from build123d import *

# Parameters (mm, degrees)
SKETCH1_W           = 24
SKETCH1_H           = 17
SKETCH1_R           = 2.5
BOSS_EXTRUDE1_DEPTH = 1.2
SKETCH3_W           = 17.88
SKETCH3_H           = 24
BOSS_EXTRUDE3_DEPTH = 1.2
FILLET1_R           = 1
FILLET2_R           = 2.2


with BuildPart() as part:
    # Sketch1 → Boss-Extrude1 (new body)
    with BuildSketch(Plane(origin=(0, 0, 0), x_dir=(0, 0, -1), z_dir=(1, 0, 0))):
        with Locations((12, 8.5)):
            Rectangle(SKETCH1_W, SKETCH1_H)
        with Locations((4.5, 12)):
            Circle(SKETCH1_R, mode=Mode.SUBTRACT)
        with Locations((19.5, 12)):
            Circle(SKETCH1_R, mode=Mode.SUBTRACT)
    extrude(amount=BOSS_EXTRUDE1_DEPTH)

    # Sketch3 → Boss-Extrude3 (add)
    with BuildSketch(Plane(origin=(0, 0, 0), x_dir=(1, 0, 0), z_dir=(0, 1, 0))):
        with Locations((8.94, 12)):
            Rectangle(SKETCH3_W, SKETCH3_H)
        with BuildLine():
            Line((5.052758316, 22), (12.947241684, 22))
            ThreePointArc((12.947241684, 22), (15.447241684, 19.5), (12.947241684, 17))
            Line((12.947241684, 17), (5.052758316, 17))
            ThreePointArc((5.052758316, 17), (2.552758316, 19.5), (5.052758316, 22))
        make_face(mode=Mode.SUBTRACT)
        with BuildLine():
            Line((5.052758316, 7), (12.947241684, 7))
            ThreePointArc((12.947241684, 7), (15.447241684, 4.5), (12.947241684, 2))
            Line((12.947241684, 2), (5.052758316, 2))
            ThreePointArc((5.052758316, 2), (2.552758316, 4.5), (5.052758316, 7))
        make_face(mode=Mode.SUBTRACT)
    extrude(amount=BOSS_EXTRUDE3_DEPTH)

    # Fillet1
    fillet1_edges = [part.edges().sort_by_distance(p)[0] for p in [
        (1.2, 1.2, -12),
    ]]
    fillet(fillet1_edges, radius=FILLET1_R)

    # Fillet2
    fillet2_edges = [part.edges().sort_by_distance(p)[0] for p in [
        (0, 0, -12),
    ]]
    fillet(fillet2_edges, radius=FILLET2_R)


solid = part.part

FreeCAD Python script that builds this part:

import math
import FreeCAD as App
import Part
import Sketcher
from FreeCAD import Vector
Q = App.Units.Quantity


def edges_at(feature, points):
    """Names of the edges that pass closest to the given points."""
    edges = feature.Shape.Edges
    near = lambda p: min(range(len(edges)), key=lambda i: edges[i].distToShape(Part.Vertex(*p))[0])
    return sorted({f"Edge{near(p) + 1}" for p in points})

doc = App.newDocument("Part")
params = doc.addObject("Spreadsheet::Sheet", "Params")
for row, (alias, value) in enumerate([
    ("sketch1_diameter", "5 mm"),
    ("sketch1_width", "17 mm"),
    ("sketch1_height", "24 mm"),
    ("pad1_length", "1.2 mm"),
    ("sketch2_radius", "2.5 mm"),
    ("sketch2_height", "24 mm"),
    ("sketch2_width", "17.88 mm"),
    ("pad2_length", "1.2 mm"),
    ("fillet_radius", "1 mm"),
    ("fillet2_radius", "2.2 mm"),
], start=1):
    params.set(f"A{row}", alias)
    params.set(f"B{row}", "=" + value)
    params.setAlias(f"B{row}", alias)

body = doc.addObject("PartDesign::Body", "Body")

sketch1 = body.newObject("Sketcher::SketchObject", "Sketch")
sketch1.AttachmentSupport = (doc.getObject("YZ_Plane"), [""])
sketch1.MapMode = "FlatFace"
sketch1.addGeometry([
    Part.LineSegment(Vector(17, 0, 0), Vector(0, 0, 0)),
    Part.LineSegment(Vector(0, 0, 0), Vector(0, -24, 0)),
    Part.LineSegment(Vector(0, -24, 0), Vector(17, -24, 0)),
    Part.LineSegment(Vector(17, -24, 0), Vector(17, 0, 0)),
    Part.Circle(Vector(12, -4.5, 0), Vector(0, 0, 1), 2.5),
    Part.Circle(Vector(12, -19.5, 0), Vector(0, 0, 1), 2.5),
], False)
sketch1.addConstraint([
    Sketcher.Constraint("Coincident", 0, 2, 1, 1),
    Sketcher.Constraint("Coincident", 1, 2, 2, 1),
    Sketcher.Constraint("Coincident", 2, 2, 3, 1),
    Sketcher.Constraint("Coincident", 3, 2, 0, 1),
    Sketcher.Constraint("Horizontal", 0),
    Sketcher.Constraint("Vertical", 1),
    Sketcher.Constraint("Horizontal", 2),
    Sketcher.Constraint("Vertical", 3),
    Sketcher.Constraint("Coincident", 0, 2, -1, 1),
    Sketcher.Constraint("Equal", 4, 5),
    Sketcher.Constraint("Vertical", 4, 3, 5, 3),
    Sketcher.Constraint("Diameter", 4, Q("5 mm")),
    Sketcher.Constraint("DistanceX", 0, 2, 0, 1, Q("17 mm")),
    Sketcher.Constraint("DistanceY", 1, 2, 1, 1, Q("24 mm")),
    Sketcher.Constraint("DistanceX", -1, 1, 4, 3, Q("12 mm")),
    Sketcher.Constraint("DistanceY", 5, 3, 4, 3, Q("15 mm")),
    Sketcher.Constraint("DistanceY", 4, 3, -1, 1, Q("4.5 mm")),
])
sketch1.setExpression("Constraints[11]", "Params.sketch1_diameter")
sketch1.setExpression("Constraints[12]", "Params.sketch1_width")
sketch1.setExpression("Constraints[13]", "Params.sketch1_height")
pad1 = body.newObject("PartDesign::Pad", "Pad")
pad1.Profile = sketch1
pad1.setExpression("Length", "Params.pad1_length")

sketch2 = body.newObject("Sketcher::SketchObject", "Sketch001")
sketch2.AttachmentSupport = (doc.getObject("XZ_Plane"), [""])
sketch2.MapMode = "FlatFace"
sketch2.addGeometry([
    Part.LineSegment(Vector(0, -24, 0), Vector(0, 0, 0)),
    Part.LineSegment(Vector(0, 0, 0), Vector(17.88, 0, 0)),
    Part.LineSegment(Vector(17.88, 0, 0), Vector(17.88, -24, 0)),
    Part.LineSegment(Vector(17.88, -24, 0), Vector(0, -24, 0)),
    Part.ArcOfCircle(Part.Circle(Vector(5.052758, -4.5, 0), Vector(0, 0, 1), 2.5), math.radians(90), math.radians(270)),
    Part.LineSegment(Vector(5.052758, -7, 0), Vector(12.947242, -7, 0)),
    Part.ArcOfCircle(Part.Circle(Vector(12.947242, -4.5, 0), Vector(0, 0, 1), 2.5), math.radians(-90), math.radians(90)),
    Part.LineSegment(Vector(12.947242, -2, 0), Vector(5.052758, -2, 0)),
    Part.ArcOfCircle(Part.Circle(Vector(5.052758, -19.5, 0), Vector(0, 0, 1), 2.5), math.radians(90), math.radians(270)),
    Part.LineSegment(Vector(5.052758, -22, 0), Vector(12.947242, -22, 0)),
    Part.ArcOfCircle(Part.Circle(Vector(12.947242, -19.5, 0), Vector(0, 0, 1), 2.5), math.radians(-90), math.radians(90)),
    Part.LineSegment(Vector(12.947242, -17, 0), Vector(5.052758, -17, 0)),
], False)
sketch2.addConstraint([
    Sketcher.Constraint("Coincident", 0, 2, 1, 1),
    Sketcher.Constraint("Coincident", 1, 2, 2, 1),
    Sketcher.Constraint("Coincident", 2, 2, 3, 1),
    Sketcher.Constraint("Coincident", 3, 2, 0, 1),
    Sketcher.Constraint("Tangent", 4, 2, 5, 1),
    Sketcher.Constraint("Tangent", 5, 2, 6, 1),
    Sketcher.Constraint("Tangent", 6, 2, 7, 1),
    Sketcher.Constraint("Tangent", 7, 2, 4, 1),
    Sketcher.Constraint("Tangent", 8, 2, 9, 1),
    Sketcher.Constraint("Tangent", 9, 2, 10, 1),
    Sketcher.Constraint("Tangent", 10, 2, 11, 1),
    Sketcher.Constraint("Tangent", 11, 2, 8, 1),
    Sketcher.Constraint("Vertical", 0),
    Sketcher.Constraint("Horizontal", 1),
    Sketcher.Constraint("Vertical", 2),
    Sketcher.Constraint("Horizontal", 3),
    Sketcher.Constraint("Horizontal", 5),
    Sketcher.Constraint("Horizontal", 7),
    Sketcher.Constraint("Horizontal", 9),
    Sketcher.Constraint("Horizontal", 11),
    Sketcher.Constraint("Coincident", 0, 2, -1, 1),
    Sketcher.Constraint("Equal", 6, 8),
    Sketcher.Constraint("Vertical", 4, 3, 8, 3),
    Sketcher.Constraint("Vertical", 6, 3, 10, 3),
    Sketcher.Constraint("Radius", 4, Q("2.5 mm")),
    Sketcher.Constraint("DistanceY", 0, 1, 0, 2, Q("24 mm")),
    Sketcher.Constraint("DistanceY", 4, 2, -1, 1, Q("7 mm")),
    Sketcher.Constraint("DistanceY", 8, 2, -1, 1, Q("22 mm")),
    Sketcher.Constraint("DistanceX", 1, 1, 1, 2, Q("17.88 mm")),
    Sketcher.Constraint("DistanceX", 5, 1, 5, 2, Q("7.894483 mm")),
    Sketcher.Constraint("DistanceX", -1, 1, 4, 3, Q("5.052758 mm")),
])
sketch2.setExpression("Constraints[24]", "Params.sketch2_radius")
sketch2.setExpression("Constraints[25]", "Params.sketch2_height")
sketch2.setExpression("Constraints[28]", "Params.sketch2_width")
pad2 = body.newObject("PartDesign::Pad", "Pad001")
pad2.Profile = sketch2
pad2.setExpression("Length", "Params.pad2_length")
pad2.Reversed = True
doc.recompute()

fillet = body.newObject("PartDesign::Fillet", "Fillet")
fillet.Base = (pad2, edges_at(pad2, [(1.2, 1.2, -12)]))
fillet.setExpression("Radius", "Params.fillet_radius")
doc.recompute()

fillet2 = body.newObject("PartDesign::Fillet", "Fillet001")
fillet2.Base = (fillet, edges_at(fillet, [(0, 0, -12)]))
fillet2.setExpression("Radius", "Params.fillet2_radius")

doc.recompute()
